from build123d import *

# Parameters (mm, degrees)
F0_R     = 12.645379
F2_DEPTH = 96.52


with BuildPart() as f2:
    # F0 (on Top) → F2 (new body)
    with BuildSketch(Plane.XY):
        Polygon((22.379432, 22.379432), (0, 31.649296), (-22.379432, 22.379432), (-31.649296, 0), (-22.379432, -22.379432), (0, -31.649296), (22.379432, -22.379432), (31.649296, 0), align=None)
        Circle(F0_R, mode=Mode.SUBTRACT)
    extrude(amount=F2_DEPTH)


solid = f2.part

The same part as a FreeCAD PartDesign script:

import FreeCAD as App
import Part
import Sketcher
from FreeCAD import Vector
Q = App.Units.Quantity


def add_polygon(sketch, points):
    """Adds a closed chain of lines whose ends are joined by coincident constraints."""
    first, n = sketch.GeometryCount, len(points)
    for a, b in zip(points, points[1:] + points[:1]):
        sketch.addGeometry(Part.LineSegment(App.Vector(*a, 0), App.Vector(*b, 0)), False)
    for i in range(n):
        sketch.addConstraint(Sketcher.Constraint("Coincident", first + i, 2, first + (i + 1) % n, 1))

doc = App.newDocument("Part")
body = doc.addObject("PartDesign::Body", "Body")

# Sketch on XY plane
sketch1 = doc.addObject("Sketcher::SketchObject", "Sketch")
body.addObject(sketch1)
sketch1.AttachmentSupport = (doc.XY_Plane, [""])
sketch1.MapMode = "FlatFace"
add_polygon(sketch1, [(22.379432, 22.379432), (0, 31.649296), (-22.379432, 22.379432), (-31.649296, 0), (-22.379432, -22.379432), (0, -31.649296), (22.379432, -22.379432), (31.649296, 0)])  # lines 0-7
sketch1.addGeometry(Part.Circle(Vector(0, 0, 0), Vector(0, 0, 1), 12.645379), False)  # 8
sketch1.addConstraint(Sketcher.Constraint("Coincident", 8, 3, -1, 1))
sketch1.addConstraint(Sketcher.Constraint("Symmetric", 0, 2, 4, 2, -1, 1))
sketch1.addConstraint(Sketcher.Constraint("Symmetric", 1, 2, 5, 2, -1, 1))
sketch1.addConstraint(Sketcher.Constraint("Symmetric", 2, 2, 6, 2, -1, 1))
sketch1.addConstraint(Sketcher.Constraint("Symmetric", 3, 2, 7, 2, -1, 1))
sketch1.addConstraint(Sketcher.Constraint("Symmetric", 3, 2, 5, 2, -2))
sketch1.addConstraint(Sketcher.Constraint("PointOnObject", 0, 2, -2))
sketch1.addConstraint(Sketcher.Constraint("PointOnObject", 2, 2, -1))
sketch1.addConstraint(Sketcher.Constraint("Perpendicular", 0, 2))
sketch1.addConstraint(Sketcher.Constraint("Equal", 1, 2))
sketch1.addConstraint(Sketcher.Constraint("Angle", 0, Q("157.500001 deg")))
sketch1.addConstraint(Sketcher.Constraint("Diameter", 8, Q("25.290758 mm")))
sketch1.addConstraint(Sketcher.Constraint("Distance", 0, Q("24.223323 mm")))
pad1 = doc.addObject("PartDesign::Pad", "Pad")
body.addObject(pad1)
pad1.Profile = sketch1
pad1.Length = Q("3.8 in")

doc.recompute()
